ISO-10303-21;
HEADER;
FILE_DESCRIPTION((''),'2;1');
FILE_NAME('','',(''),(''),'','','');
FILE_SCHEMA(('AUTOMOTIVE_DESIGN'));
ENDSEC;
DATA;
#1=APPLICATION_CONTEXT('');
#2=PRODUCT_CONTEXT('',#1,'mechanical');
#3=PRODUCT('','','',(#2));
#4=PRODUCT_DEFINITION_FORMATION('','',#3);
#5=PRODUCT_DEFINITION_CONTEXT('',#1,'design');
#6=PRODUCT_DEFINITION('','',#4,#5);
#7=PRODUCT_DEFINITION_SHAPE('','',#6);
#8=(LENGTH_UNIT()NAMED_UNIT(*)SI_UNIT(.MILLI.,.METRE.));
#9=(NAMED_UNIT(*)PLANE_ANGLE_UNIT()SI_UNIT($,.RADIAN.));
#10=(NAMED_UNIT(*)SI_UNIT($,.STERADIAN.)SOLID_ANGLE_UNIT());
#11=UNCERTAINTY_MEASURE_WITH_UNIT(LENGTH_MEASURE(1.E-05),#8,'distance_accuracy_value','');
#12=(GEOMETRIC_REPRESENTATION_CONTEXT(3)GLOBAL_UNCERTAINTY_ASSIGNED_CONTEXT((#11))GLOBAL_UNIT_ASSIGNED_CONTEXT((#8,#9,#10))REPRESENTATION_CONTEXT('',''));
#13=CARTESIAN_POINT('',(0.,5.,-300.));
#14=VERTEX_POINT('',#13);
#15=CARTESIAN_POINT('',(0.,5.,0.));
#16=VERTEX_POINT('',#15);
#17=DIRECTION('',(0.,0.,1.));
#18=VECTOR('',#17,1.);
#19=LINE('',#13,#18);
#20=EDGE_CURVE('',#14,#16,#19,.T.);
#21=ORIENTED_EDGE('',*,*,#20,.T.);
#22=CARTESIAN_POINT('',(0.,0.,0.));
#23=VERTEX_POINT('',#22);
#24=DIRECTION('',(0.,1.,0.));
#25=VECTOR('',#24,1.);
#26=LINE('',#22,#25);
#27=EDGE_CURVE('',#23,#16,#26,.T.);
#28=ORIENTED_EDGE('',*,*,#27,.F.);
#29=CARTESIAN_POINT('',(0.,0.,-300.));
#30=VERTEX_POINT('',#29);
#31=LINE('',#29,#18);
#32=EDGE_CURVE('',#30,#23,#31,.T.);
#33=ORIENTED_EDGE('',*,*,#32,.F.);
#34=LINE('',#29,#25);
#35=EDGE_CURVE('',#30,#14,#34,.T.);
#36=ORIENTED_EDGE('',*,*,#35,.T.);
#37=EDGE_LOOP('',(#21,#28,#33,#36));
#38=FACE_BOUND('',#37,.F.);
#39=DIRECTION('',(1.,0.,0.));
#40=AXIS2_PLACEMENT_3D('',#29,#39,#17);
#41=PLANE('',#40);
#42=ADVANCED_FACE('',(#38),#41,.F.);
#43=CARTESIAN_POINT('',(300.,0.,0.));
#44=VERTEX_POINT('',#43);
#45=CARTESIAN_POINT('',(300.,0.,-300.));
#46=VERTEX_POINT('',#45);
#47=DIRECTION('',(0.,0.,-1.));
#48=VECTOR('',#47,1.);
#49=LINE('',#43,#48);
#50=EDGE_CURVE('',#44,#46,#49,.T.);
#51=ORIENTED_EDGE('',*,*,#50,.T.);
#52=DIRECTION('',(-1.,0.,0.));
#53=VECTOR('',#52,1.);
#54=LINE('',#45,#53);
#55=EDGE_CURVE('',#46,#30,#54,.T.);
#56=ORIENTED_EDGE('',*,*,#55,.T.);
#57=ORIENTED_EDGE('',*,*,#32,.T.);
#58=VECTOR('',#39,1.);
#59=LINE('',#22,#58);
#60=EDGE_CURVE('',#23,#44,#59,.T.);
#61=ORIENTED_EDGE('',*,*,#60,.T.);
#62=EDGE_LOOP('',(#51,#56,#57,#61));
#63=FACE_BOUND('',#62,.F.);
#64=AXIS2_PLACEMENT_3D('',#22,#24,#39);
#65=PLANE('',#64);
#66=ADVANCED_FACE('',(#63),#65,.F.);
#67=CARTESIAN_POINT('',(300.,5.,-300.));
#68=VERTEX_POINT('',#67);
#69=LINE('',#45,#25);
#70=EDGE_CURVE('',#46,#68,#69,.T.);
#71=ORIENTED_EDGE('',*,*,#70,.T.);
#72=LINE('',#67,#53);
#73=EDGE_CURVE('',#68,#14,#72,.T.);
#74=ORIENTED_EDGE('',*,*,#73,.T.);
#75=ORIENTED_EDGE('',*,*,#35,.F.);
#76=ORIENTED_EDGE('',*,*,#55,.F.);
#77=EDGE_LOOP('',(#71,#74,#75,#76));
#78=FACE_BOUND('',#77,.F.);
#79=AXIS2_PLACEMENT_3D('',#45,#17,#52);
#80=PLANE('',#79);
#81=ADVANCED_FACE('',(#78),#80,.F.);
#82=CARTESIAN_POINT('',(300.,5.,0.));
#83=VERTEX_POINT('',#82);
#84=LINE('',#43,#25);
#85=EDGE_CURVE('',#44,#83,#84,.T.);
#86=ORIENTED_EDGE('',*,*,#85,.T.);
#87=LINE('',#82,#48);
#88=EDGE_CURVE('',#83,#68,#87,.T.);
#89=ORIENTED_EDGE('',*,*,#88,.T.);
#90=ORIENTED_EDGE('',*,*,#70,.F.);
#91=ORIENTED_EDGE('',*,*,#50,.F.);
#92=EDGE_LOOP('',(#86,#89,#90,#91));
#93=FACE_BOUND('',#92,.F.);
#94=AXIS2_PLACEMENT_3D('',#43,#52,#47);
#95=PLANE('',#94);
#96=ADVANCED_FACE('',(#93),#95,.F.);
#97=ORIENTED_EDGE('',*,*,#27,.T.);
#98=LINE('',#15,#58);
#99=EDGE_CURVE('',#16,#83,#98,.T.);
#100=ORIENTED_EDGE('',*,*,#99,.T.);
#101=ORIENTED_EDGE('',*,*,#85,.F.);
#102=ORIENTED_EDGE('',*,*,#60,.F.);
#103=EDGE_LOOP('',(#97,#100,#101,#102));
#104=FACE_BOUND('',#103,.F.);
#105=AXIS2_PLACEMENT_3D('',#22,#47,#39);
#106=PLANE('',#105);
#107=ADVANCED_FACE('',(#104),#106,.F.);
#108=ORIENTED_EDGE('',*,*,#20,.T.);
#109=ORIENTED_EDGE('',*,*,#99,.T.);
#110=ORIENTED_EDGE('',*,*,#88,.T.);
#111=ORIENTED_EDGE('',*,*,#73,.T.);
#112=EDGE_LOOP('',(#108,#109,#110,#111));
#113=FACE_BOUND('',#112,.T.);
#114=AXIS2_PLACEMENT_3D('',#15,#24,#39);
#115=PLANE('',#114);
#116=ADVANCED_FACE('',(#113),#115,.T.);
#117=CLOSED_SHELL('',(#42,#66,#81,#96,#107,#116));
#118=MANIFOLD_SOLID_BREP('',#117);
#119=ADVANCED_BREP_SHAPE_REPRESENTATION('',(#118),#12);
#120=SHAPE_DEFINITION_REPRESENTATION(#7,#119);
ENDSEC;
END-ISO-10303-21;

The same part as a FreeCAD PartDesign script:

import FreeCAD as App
import Part
import Sketcher

V = App.Vector


def add_polygon(sketch, points):
    """Adds a closed chain of lines whose ends are joined by coincident constraints."""
    first, n = sketch.GeometryCount, len(points)
    for a, b in zip(points, points[1:] + points[:1]):
        sketch.addGeometry(Part.LineSegment(App.Vector(*a, 0), App.Vector(*b, 0)), False)
    for i in range(n):
        sketch.addConstraint(Sketcher.Constraint("Coincident", first + i, 2, first + (i + 1) % n, 1))

doc = App.newDocument("Part")
body = doc.addObject("PartDesign::Body", "Body")

sketch1 = body.newObject("Sketcher::SketchObject", "Sketch")
sketch1.AttachmentSupport = (doc.getObject("XZ_Plane"), [""])
sketch1.MapMode = "FlatFace"
add_polygon(sketch1, [(0, -300), (0, 0), (300, 0), (300, -300)])
sketch1.addConstraint([
    Sketcher.Constraint("Vertical", 0),
    Sketcher.Constraint("Horizontal", 1),
    Sketcher.Constraint("Vertical", 2),
    Sketcher.Constraint("Horizontal", 3),
    Sketcher.Constraint("Coincident", 0, 2, -1, 1),
    Sketcher.Constraint("Equal", 3, 0),
    Sketcher.Constraint("DistanceX", 1, 1, 1, 2, 300.0),
])
pad1 = body.newObject("PartDesign::Pad", "Pad")
pad1.Profile = sketch1
pad1.Length = 5
pad1.Reversed = True

doc.recompute()
